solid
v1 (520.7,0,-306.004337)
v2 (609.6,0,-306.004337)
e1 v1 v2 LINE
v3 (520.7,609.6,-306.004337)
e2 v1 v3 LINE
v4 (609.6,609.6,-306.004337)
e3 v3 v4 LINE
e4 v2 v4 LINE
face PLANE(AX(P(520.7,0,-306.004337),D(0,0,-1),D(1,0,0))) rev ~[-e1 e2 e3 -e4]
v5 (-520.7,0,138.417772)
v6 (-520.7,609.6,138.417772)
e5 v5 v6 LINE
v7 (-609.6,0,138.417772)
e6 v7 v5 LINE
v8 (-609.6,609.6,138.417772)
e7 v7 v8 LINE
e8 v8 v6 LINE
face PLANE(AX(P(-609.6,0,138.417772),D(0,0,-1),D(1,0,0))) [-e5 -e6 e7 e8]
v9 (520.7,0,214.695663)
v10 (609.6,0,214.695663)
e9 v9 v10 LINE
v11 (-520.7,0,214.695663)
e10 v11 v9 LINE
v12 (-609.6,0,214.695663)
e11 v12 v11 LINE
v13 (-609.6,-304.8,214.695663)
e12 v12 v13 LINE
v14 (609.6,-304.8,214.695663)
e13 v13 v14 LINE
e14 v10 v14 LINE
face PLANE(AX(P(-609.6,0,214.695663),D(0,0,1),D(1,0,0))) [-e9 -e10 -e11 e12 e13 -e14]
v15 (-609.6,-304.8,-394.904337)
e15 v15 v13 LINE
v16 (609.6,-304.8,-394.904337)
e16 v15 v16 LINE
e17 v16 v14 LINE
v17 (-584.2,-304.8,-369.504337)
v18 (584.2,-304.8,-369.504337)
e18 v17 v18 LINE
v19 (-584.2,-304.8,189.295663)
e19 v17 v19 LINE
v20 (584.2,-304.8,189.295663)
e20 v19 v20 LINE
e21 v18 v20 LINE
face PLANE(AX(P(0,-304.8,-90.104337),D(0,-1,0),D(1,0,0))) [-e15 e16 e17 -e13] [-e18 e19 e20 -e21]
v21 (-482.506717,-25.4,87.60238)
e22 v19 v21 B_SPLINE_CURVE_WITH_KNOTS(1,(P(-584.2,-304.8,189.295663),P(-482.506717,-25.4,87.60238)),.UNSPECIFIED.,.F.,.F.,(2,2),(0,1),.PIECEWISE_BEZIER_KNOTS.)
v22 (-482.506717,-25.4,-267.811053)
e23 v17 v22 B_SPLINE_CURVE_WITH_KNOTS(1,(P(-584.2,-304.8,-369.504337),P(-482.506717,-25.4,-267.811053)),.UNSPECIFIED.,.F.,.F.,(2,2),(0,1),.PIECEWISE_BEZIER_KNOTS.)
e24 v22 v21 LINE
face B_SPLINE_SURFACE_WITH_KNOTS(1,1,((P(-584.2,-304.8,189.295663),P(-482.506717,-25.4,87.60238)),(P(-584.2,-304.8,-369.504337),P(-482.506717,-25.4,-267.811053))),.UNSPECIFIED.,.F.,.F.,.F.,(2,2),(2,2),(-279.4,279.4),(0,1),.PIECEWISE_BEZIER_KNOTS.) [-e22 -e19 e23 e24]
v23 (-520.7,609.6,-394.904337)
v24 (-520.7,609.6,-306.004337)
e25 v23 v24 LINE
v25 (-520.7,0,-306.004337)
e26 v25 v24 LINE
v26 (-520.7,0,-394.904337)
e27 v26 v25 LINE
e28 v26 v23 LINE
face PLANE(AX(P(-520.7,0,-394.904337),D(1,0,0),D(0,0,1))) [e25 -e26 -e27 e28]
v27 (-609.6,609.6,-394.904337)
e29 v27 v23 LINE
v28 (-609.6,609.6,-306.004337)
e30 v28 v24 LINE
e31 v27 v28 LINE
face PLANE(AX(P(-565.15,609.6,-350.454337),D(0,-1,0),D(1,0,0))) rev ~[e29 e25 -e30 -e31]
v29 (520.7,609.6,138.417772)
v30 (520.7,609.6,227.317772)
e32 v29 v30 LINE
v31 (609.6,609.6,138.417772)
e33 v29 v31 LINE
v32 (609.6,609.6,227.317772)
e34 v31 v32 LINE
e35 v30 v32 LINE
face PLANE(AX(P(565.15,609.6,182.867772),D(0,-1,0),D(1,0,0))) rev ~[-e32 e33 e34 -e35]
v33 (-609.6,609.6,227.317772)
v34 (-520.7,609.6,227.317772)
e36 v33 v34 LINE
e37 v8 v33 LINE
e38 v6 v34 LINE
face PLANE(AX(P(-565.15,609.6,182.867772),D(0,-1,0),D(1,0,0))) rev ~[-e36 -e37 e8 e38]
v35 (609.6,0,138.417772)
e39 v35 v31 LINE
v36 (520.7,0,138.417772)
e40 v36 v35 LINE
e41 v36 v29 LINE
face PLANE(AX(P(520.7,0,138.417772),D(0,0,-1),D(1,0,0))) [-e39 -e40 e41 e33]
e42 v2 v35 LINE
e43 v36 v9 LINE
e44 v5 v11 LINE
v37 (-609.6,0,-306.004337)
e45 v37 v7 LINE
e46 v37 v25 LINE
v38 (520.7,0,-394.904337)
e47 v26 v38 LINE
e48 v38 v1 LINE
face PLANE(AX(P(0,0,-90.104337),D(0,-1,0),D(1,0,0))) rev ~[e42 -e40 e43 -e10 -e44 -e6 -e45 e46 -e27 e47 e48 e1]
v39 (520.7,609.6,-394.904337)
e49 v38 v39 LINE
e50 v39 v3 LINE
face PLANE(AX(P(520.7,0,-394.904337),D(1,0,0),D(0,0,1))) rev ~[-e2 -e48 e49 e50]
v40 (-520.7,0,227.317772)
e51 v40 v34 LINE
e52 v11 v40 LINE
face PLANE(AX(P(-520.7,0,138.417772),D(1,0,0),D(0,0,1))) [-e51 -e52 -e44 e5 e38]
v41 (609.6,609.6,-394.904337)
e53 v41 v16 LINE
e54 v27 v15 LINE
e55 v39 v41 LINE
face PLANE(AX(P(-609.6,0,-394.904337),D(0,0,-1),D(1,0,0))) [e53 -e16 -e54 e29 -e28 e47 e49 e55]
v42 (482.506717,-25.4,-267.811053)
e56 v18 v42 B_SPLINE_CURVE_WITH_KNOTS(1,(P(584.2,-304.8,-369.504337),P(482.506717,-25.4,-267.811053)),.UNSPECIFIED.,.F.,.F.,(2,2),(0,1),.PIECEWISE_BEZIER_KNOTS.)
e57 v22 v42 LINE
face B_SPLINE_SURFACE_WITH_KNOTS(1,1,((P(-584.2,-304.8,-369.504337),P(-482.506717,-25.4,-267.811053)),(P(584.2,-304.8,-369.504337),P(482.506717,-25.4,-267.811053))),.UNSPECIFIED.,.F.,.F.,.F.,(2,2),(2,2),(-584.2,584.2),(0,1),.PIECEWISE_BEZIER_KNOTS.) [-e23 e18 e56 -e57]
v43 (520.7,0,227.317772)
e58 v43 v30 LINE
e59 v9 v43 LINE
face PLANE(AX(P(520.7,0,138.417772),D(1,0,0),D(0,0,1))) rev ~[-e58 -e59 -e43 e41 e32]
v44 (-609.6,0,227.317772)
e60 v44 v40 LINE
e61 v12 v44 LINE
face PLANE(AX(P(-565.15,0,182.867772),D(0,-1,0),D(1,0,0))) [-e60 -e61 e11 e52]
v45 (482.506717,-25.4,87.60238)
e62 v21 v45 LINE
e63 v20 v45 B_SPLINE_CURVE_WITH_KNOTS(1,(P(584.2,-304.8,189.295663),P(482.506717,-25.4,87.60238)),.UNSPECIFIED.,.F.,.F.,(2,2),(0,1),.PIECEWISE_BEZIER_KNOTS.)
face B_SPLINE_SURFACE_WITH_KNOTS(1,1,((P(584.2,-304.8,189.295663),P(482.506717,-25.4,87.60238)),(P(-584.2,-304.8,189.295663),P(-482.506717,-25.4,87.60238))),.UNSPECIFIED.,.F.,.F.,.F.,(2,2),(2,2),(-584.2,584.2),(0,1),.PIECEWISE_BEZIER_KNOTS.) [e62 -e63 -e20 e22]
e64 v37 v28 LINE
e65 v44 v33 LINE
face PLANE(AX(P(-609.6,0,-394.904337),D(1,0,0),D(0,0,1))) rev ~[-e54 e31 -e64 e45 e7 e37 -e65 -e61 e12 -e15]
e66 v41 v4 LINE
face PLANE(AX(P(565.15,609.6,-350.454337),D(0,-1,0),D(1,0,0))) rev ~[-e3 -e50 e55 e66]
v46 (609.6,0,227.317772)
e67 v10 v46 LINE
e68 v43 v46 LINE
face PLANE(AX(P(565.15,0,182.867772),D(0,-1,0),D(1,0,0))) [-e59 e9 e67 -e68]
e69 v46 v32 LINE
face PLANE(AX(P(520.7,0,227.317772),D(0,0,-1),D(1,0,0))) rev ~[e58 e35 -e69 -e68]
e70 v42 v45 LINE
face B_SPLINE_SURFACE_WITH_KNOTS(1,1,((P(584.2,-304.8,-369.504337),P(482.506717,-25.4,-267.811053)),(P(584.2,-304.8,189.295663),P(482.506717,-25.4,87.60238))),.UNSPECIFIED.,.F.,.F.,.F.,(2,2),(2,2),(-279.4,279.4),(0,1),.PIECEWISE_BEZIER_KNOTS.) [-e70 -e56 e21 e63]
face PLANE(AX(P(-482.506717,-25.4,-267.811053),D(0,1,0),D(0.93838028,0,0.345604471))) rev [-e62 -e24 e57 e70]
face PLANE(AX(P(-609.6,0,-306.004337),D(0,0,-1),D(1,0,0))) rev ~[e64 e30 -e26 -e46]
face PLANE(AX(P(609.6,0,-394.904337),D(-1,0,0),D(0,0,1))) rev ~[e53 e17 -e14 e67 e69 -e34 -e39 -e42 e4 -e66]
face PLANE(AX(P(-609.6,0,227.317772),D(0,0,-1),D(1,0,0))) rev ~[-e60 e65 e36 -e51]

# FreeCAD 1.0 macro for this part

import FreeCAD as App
import Part
import Sketcher
Q = App.Units.Quantity

doc = App.newDocument("Part")
params = doc.addObject("Spreadsheet::Sheet", "Params")
for row, (alias, value) in enumerate([
    ("sketch1_width", "48 in"),
    ("sketch1_height", "24 in"),
    ("pad1_length", "12 in"),
    ("sketch2_width", "46 in"),
    ("sketch2_height", "22 in"),
    ("pocket1_length", "11 in"),
    ("pocket1_taper", "-20 deg"),
    ("sketch3_width", "3.5 in"),
    ("pad2_length", "24 in"),
], start=1):
    params.set(f"A{row}", alias)
    params.set(f"B{row}", "=" + value)
    params.setAlias(f"B{row}", alias)

body = doc.addObject("PartDesign::Body", "Body")

# Sketch on XZ plane
sketch1 = body.newObject("Sketcher::SketchObject", "Sketch")
sketch1.AttachmentSupport = (doc.getObject("XZ_Plane"), [""])
sketch1.MapMode = "FlatFace"
sketch1.addGeometry([
    Part.LineSegment(App.Vector(-609.6, 214.695663, 0), App.Vector(-609.6, -394.904337, 0)),
    Part.LineSegment(App.Vector(-609.6, -394.904337, 0), App.Vector(609.6, -394.904337, 0)),
    Part.LineSegment(App.Vector(609.6, -394.904337, 0), App.Vector(609.6, 214.695663, 0)),
    Part.LineSegment(App.Vector(609.6, 214.695663, 0), App.Vector(-609.6, 214.695663, 0)),
], False)
sketch1.addConstraint([
    Sketcher.Constraint("Coincident", 0, 2, 1, 1),
    Sketcher.Constraint("Coincident", 1, 2, 2, 1),
    Sketcher.Constraint("Coincident", 2, 2, 3, 1),
    Sketcher.Constraint("Coincident", 3, 2, 0, 1),
    Sketcher.Constraint("Vertical", 0),
    Sketcher.Constraint("Horizontal", 1),
    Sketcher.Constraint("Vertical", 2),
    Sketcher.Constraint("Horizontal", 3),
    Sketcher.Constraint("DistanceX", 1, 1, 1, 2, Q("48 in")),
    Sketcher.Constraint("DistanceY", 0, 2, 0, 1, Q("24 in")),
    Sketcher.Constraint("DistanceX", 0, 2, -1, 1, Q("24 in")),
    Sketcher.Constraint("DistanceY", 0, 2, -1, 1, 394.904337),
])
sketch1.setExpression("Constraints[8]", "Params.sketch1_width")
sketch1.setExpression("Constraints[9]", "Params.sketch1_height")
pad1 = body.newObject("PartDesign::Pad", "Pad")
pad1.Profile = sketch1
pad1.setExpression("Length", "Params.pad1_length")

# Sketch on XZ plane
sketch2 = body.newObject("Sketcher::SketchObject", "Sketch001")
sketch2.AttachmentSupport = (doc.getObject("XZ_Plane"), [""])
sketch2.MapMode = "FlatFace"
sketch2.AttachmentOffset = App.Placement(App.Vector(0, 0, 12 * 25.4), App.Rotation())
sketch2.addGeometry([
    Part.LineSegment(App.Vector(-584.2, 189.295663, 0), App.Vector(-584.2, -369.504337, 0)),
    Part.LineSegment(App.Vector(-584.2, -369.504337, 0), App.Vector(584.2, -369.504337, 0)),
    Part.LineSegment(App.Vector(584.2, -369.504337, 0), App.Vector(584.2, 189.295663, 0)),
    Part.LineSegment(App.Vector(584.2, 189.295663, 0), App.Vector(-584.2, 189.295663, 0)),
], False)
sketch2.addConstraint([
    Sketcher.Constraint("Coincident", 0, 2, 1, 1),
    Sketcher.Constraint("Coincident", 1, 2, 2, 1),
    Sketcher.Constraint("Coincident", 2, 2, 3, 1),
    Sketcher.Constraint("Coincident", 3, 2, 0, 1),
    Sketcher.Constraint("Vertical", 0),
    Sketcher.Constraint("Horizontal", 1),
    Sketcher.Constraint("Vertical", 2),
    Sketcher.Constraint("Horizontal", 3),
    Sketcher.Constraint("DistanceX", 1, 1, 1, 2, Q("46 in")),
    Sketcher.Constraint("DistanceY", 0, 2, 0, 1, Q("22 in")),
    Sketcher.Constraint("DistanceX", 0, 2, -1, 1, Q("23 in")),
    Sketcher.Constraint("DistanceY", 0, 2, -1, 1, 369.504337),
])
sketch2.setExpression("Constraints[8]", "Params.sketch2_width")
sketch2.setExpression("Constraints[9]", "Params.sketch2_height")
pocket1 = body.newObject("PartDesign::Pocket", "Pocket")
pocket1.Profile = sketch2
pocket1.setExpression("Length", "Params.pocket1_length")
pocket1.setExpression("TaperAngle", "Params.pocket1_taper")

# Sketch on XZ plane
sketch3 = body.newObject("Sketcher::SketchObject", "Sketch002")
sketch3.AttachmentSupport = (doc.getObject("XZ_Plane"), [""])
sketch3.MapMode = "FlatFace"
sketch3.addGeometry([
    Part.LineSegment(App.Vector(-609.6, -306.004337, 0), App.Vector(-609.6, -394.904337, 0)),  # 0
    Part.LineSegment(App.Vector(-609.6, -394.904337, 0), App.Vector(-520.7, -394.904337, 0)),  # 1
    Part.LineSegment(App.Vector(-520.7, -394.904337, 0), App.Vector(-520.7, -306.004337, 0)),  # 2
    Part.LineSegment(App.Vector(-520.7, -306.004337, 0), App.Vector(-609.6, -306.004337, 0)),  # 3
    Part.LineSegment(App.Vector(520.7, -306.004337, 0), App.Vector(520.7, -394.904337, 0)),  # 4
    Part.LineSegment(App.Vector(520.7, -394.904337, 0), App.Vector(609.6, -394.904337, 0)),  # 5
    Part.LineSegment(App.Vector(609.6, -394.904337, 0), App.Vector(609.6, -306.004337, 0)),  # 6
    Part.LineSegment(App.Vector(609.6, -306.004337, 0), App.Vector(520.7, -306.004337, 0)),  # 7
    Part.LineSegment(App.Vector(520.7, 227.317772, 0), App.Vector(520.7, 138.417772, 0)),  # 8
    Part.LineSegment(App.Vector(520.7, 138.417772, 0), App.Vector(609.6, 138.417772, 0)),  # 9
    Part.LineSegment(App.Vector(609.6, 138.417772, 0), App.Vector(609.6, 227.317772, 0)),  # 10
    Part.LineSegment(App.Vector(609.6, 227.317772, 0), App.Vector(520.7, 227.317772, 0)),  # 11
    Part.LineSegment(App.Vector(-609.6, 227.317772, 0), App.Vector(-609.6, 138.417772, 0)),  # 12
    Part.LineSegment(App.Vector(-609.6, 138.417772, 0), App.Vector(-520.7, 138.417772, 0)),  # 13
    Part.LineSegment(App.Vector(-520.7, 138.417772, 0), App.Vector(-520.7, 227.317772, 0)),  # 14
    Part.LineSegment(App.Vector(-520.7, 227.317772, 0), App.Vector(-609.6, 227.317772, 0)),  # 15
], False)
sketch3.addConstraint([
    Sketcher.Constraint("Coincident", 0, 2, 1, 1),
    Sketcher.Constraint("Coincident", 1, 2, 2, 1),
    Sketcher.Constraint("Coincident", 2, 2, 3, 1),
    Sketcher.Constraint("Coincident", 3, 2, 0, 1),
    Sketcher.Constraint("Coincident", 4, 2, 5, 1),
    Sketcher.Constraint("Coincident", 5, 2, 6, 1),
    Sketcher.Constraint("Coincident", 6, 2, 7, 1),
    Sketcher.Constraint("Coincident", 7, 2, 4, 1),
    Sketcher.Constraint("Coincident", 8, 2, 9, 1),
    Sketcher.Constraint("Coincident", 9, 2, 10, 1),
    Sketcher.Constraint("Coincident", 10, 2, 11, 1),
    Sketcher.Constraint("Coincident", 11, 2, 8, 1),
    Sketcher.Constraint("Coincident", 12, 2, 13, 1),
    Sketcher.Constraint("Coincident", 13, 2, 14, 1),
    Sketcher.Constraint("Coincident", 14, 2, 15, 1),
    Sketcher.Constraint("Coincident", 15, 2, 12, 1),
    Sketcher.Constraint("Vertical", 0),
    Sketcher.Constraint("Horizontal", 1),
    Sketcher.Constraint("Vertical", 2),
    Sketcher.Constraint("Horizontal", 3),
    Sketcher.Constraint("Vertical", 4),
    Sketcher.Constraint("Horizontal", 5),
    Sketcher.Constraint("Vertical", 6),
    Sketcher.Constraint("Horizontal", 7),
    Sketcher.Constraint("Vertical", 8),
    Sketcher.Constraint("Horizontal", 9),
    Sketcher.Constraint("Vertical", 10),
    Sketcher.Constraint("Horizontal", 11),
    Sketcher.Constraint("Vertical", 12),
    Sketcher.Constraint("Horizontal", 13),
    Sketcher.Constraint("Vertical", 14),
    Sketcher.Constraint("Horizontal", 15),
    Sketcher.Constraint("Symmetric", 1, 2, 4, 2, -2),
    Sketcher.Constraint("Symmetric", 3, 2, 6, 2, -2),
    Sketcher.Constraint("Symmetric", 9, 2, 12, 2, -2),
    Sketcher.Constraint("Symmetric", 11, 2, 14, 2, -2),
    Sketcher.Constraint("Vertical", 7, 2, 8, 2),
    Sketcher.Constraint("Vertical", 6, 2, 9, 2),
    Sketcher.Constraint("Equal", 15, 0),
    Sketcher.Constraint("Equal", 6, 8),
    Sketcher.Constraint("DistanceX", 1, 1, 1, 2, Q("3.5 in")),
    Sketcher.Constraint("DistanceX", 0, 2, -1, 1, Q("24 in")),
    Sketcher.Constraint("DistanceY", -1, 1, 8, 2, 138.417772),
    Sketcher.Constraint("DistanceY", 7, 2, 8, 2, 444.422108),
])
sketch3.setExpression("Constraints[40]", "Params.sketch3_width")
pad2 = body.newObject("PartDesign::Pad", "Pad001")
pad2.Profile = sketch3
pad2.setExpression("Length", "Params.pad2_length")
pad2.Reversed = True

doc.recompute()
